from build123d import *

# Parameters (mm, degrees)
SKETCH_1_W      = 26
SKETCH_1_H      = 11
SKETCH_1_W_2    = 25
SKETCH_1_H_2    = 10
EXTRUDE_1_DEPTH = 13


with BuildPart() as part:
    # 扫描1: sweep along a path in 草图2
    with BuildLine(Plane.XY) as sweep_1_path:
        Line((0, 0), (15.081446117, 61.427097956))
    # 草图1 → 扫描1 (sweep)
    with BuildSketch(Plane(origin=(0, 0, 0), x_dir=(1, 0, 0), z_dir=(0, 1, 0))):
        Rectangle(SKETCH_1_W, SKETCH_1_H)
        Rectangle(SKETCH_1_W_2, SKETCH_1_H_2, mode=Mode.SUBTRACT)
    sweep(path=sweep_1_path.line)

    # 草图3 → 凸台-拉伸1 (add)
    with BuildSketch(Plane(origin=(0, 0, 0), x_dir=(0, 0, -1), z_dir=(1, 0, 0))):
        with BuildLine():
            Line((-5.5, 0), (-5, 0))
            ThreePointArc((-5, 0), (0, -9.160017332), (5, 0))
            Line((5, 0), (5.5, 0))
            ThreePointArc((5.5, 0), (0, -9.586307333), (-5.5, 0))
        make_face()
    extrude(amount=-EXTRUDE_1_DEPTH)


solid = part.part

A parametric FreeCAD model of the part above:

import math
import FreeCAD as App
import Part
import Sketcher

V = App.Vector


def add_polygon(sketch, points):
    """Adds a closed chain of lines whose ends are joined by coincident constraints."""
    first, n = sketch.GeometryCount, len(points)
    for a, b in zip(points, points[1:] + points[:1]):
        sketch.addGeometry(Part.LineSegment(App.Vector(*a, 0), App.Vector(*b, 0)), False)
    for i in range(n):
        sketch.addConstraint(Sketcher.Constraint("Coincident", first + i, 2, first + (i + 1) % n, 1))

doc = App.newDocument("Part")
body = doc.addObject("PartDesign::Body", "Body")

sketch1 = doc.addObject("Sketcher::SketchObject", "Sketch")
body.addObject(sketch1)
sketch1.AttachmentSupport = (doc.XZ_Plane, [""])
sketch1.MapMode = "FlatFace"
add_polygon(sketch1, [(-13, -6), (-13, 6), (13, 6), (13, -6)])
add_polygon(sketch1, [(12, 5), (-12, 5), (-12, -5), (12, -5)])
sketch1.addConstraint(Sketcher.Constraint("Vertical", 0))
sketch1.addConstraint(Sketcher.Constraint("Horizontal", 1))
sketch1.addConstraint(Sketcher.Constraint("Vertical", 2))
sketch1.addConstraint(Sketcher.Constraint("Horizontal", 3))
sketch1.addConstraint(Sketcher.Constraint("Horizontal", 4))
sketch1.addConstraint(Sketcher.Constraint("Vertical", 5))
sketch1.addConstraint(Sketcher.Constraint("Horizontal", 6))
sketch1.addConstraint(Sketcher.Constraint("Vertical", 7))
sketch1.addConstraint(Sketcher.Constraint("Symmetric", 0, 2, 2, 2, -1, 1))
sketch1.addConstraint(Sketcher.Constraint("Symmetric", 4, 2, 6, 2, -1, 1))
sketch1.addConstraint(Sketcher.Constraint("DistanceX", 1, 1, 1, 2, 26.0))
sketch1.addConstraint(Sketcher.Constraint("DistanceX", 4, 2, 4, 1, 25.0))
sketch1.addConstraint(Sketcher.Constraint("DistanceY", 0, 1, 0, 2, 11.0))
sketch1.addConstraint(Sketcher.Constraint("DistanceY", 5, 2, 5, 1, 10.0))

sketch2 = doc.addObject("Sketcher::SketchObject", "Sketch001")
body.addObject(sketch2)
sketch2.Placement = App.Placement(V(0, 0, 0), App.Rotation(V(0.238436595, 0.971158067, 0), V(0, 0, 1.000000001), V(0.971158067, -0.238436595, 0), "ZXY"))
sketch2.addGeometry(Part.LineSegment(V(0, 0, 0), V(63, 0, 0)), False)
sketch2.addConstraint(Sketcher.Constraint("Horizontal", 0))
sketch2.addConstraint(Sketcher.Constraint("Coincident", 0, 1, -1, 1))
sketch2.addConstraint(Sketcher.Constraint("DistanceX", 0, 1, 0, 2, 63.25139))
doc.recompute()

additivepipe = doc.addObject("PartDesign::AdditivePipe", "AdditivePipe")
body.addObject(additivepipe)
additivepipe.Profile = sketch1
additivepipe.Spine = (sketch2, ["Edge1"])

sketch3 = doc.addObject("Sketcher::SketchObject", "Sketch002")
body.addObject(sketch3)
sketch3.AttachmentSupport = (doc.YZ_Plane, [""])
sketch3.MapMode = "FlatFace"
sketch3.addGeometry(Part.LineSegment(V(0, 5, 0), V(0, 5.5, 0)), False)
sketch3.addGeometry(Part.ArcOfCircle(Part.Circle(V(-3.2, 0, 0), V(0, 0, 1), 6.4), math.radians(60), math.radians(300)), False)
sketch3.addGeometry(Part.LineSegment(V(0, -5.5, 0), V(0, -5, 0)), False)
sketch3.addGeometry(Part.ArcOfCircle(Part.Circle(V(-3.2, 0, 0), V(0, 0, 1), 5.9), math.radians(57), math.radians(303)), False)
sketch3.addConstraint(Sketcher.Constraint("Coincident", 0, 2, 1, 1))
sketch3.addConstraint(Sketcher.Constraint("Coincident", 1, 2, 2, 1))
sketch3.addConstraint(Sketcher.Constraint("Coincident", 2, 2, 3, 2))
sketch3.addConstraint(Sketcher.Constraint("Coincident", 3, 1, 0, 1))
sketch3.addConstraint(Sketcher.Constraint("Vertical", 0))
sketch3.addConstraint(Sketcher.Constraint("Vertical", 2))
sketch3.addConstraint(Sketcher.Constraint("Coincident", 3, 3, 1, 3))
sketch3.addConstraint(Sketcher.Constraint("Symmetric", 0, 2, 1, 2, -1, 1))
sketch3.addConstraint(Sketcher.Constraint("PointOnObject", 1, 3, -1))
sketch3.addConstraint(Sketcher.Constraint("DistanceY", 0, 1, 0, 2, 0.5))
sketch3.addConstraint(Sketcher.Constraint("DistanceY", 2, 2, -1, 1, 5.0))
sketch3.addConstraint(Sketcher.Constraint("Radius", 1, 6.370925))
pad1 = doc.addObject("PartDesign::Pad", "Pad")
body.addObject(pad1)
pad1.Profile = sketch3
pad1.Length = 13
pad1.Reversed = True

doc.recompute()
